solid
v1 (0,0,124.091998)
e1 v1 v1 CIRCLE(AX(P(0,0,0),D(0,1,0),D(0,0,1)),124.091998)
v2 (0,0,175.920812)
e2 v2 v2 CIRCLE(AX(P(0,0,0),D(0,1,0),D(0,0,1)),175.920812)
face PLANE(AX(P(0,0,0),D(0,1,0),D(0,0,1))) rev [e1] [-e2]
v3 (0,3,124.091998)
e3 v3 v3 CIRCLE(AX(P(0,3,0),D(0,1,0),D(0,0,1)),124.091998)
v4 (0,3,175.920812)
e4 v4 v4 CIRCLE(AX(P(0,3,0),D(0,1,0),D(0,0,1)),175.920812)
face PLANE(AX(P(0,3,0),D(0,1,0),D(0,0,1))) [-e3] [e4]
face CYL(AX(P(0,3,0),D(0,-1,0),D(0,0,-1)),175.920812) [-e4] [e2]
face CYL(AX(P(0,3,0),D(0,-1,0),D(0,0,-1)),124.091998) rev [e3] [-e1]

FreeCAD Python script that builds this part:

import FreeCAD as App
import Part
import Sketcher
from FreeCAD import Vector
Q = App.Units.Quantity

doc = App.newDocument("Part")
params = doc.addObject("Spreadsheet::Sheet", "Params")
for row, (alias, value) in enumerate([
    ("pad1_length", "3 mm"),
], start=1):
    params.set(f"A{row}", alias)
    params.set(f"B{row}", "=" + value)
    params.setAlias(f"B{row}", alias)

body = doc.addObject("PartDesign::Body", "Body")

# Sketch on XZ plane
sketch1 = body.newObject("Sketcher::SketchObject", "Sketch")
sketch1.AttachmentSupport = (doc.getObject("XZ_Plane"), [""])
sketch1.MapMode = "FlatFace"
sketch1.addGeometry([
    Part.Circle(Vector(0, 0, 0), Vector(0, 0, 1), 175.920812),
    Part.Circle(Vector(0, 0, 0), Vector(0, 0, 1), 124.091998),
], False)
sketch1.addConstraint([
    Sketcher.Constraint("Coincident", 0, 3, -1, 1),
    Sketcher.Constraint("Coincident", 1, 3, -1, 1),
    Sketcher.Constraint("Diameter", 0, Q("351.841624 mm")),
    Sketcher.Constraint("Diameter", 1, Q("248.183996 mm")),
])
pad1 = body.newObject("PartDesign::Pad", "Pad")
pad1.Profile = sketch1
pad1.setExpression("Length", "Params.pad1_length")
pad1.Reversed = True

doc.recompute()
